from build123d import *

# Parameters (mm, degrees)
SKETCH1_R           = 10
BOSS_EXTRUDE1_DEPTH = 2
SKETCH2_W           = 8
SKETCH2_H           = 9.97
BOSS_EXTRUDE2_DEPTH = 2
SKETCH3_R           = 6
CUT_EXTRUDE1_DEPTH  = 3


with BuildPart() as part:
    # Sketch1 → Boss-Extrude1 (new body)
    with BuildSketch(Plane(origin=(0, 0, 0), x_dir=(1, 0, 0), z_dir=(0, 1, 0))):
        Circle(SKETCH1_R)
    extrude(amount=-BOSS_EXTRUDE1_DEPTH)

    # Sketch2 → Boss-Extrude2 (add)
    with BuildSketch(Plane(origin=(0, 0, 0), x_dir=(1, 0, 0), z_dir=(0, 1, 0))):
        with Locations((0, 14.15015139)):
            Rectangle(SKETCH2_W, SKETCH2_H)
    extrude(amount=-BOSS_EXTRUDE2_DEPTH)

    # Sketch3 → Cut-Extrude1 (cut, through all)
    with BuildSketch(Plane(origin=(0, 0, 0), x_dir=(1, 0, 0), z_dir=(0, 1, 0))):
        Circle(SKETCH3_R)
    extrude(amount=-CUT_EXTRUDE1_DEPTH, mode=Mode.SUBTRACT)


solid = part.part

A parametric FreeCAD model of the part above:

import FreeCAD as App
import Part
import Sketcher
from FreeCAD import Vector


def add_polygon(sketch, points):
    """Adds a closed chain of lines whose ends are joined by coincident constraints."""
    first, n = sketch.GeometryCount, len(points)
    for a, b in zip(points, points[1:] + points[:1]):
        sketch.addGeometry(Part.LineSegment(App.Vector(*a, 0), App.Vector(*b, 0)), False)
    for i in range(n):
        sketch.addConstraint(Sketcher.Constraint("Coincident", first + i, 2, first + (i + 1) % n, 1))

doc = App.newDocument("Part")
body = doc.addObject("PartDesign::Body", "Body")

sketch1 = doc.addObject("Sketcher::SketchObject", "Sketch")
body.addObject(sketch1)
sketch1.AttachmentSupport = (doc.XZ_Plane, [""])
sketch1.MapMode = "FlatFace"
sketch1.addGeometry(Part.Circle(Vector(0, 0, 0), Vector(0, 0, 1), 10), False)
sketch1.addConstraint([
    Sketcher.Constraint("Coincident", 0, 3, -1, 1),
    Sketcher.Constraint("Diameter", 0, 20.0),
])
pad1 = doc.addObject("PartDesign::Pad", "Pad")
body.addObject(pad1)
pad1.Profile = sketch1
pad1.Length = 2

sketch2 = doc.addObject("Sketcher::SketchObject", "Sketch001")
body.addObject(sketch2)
sketch2.AttachmentSupport = (doc.XZ_Plane, [""])
sketch2.MapMode = "FlatFace"
add_polygon(sketch2, [(-4, -19), (-4, -9), (4, -9), (4, -19)])
sketch2.addConstraint([
    Sketcher.Constraint("Vertical", 0),
    Sketcher.Constraint("Horizontal", 1),
    Sketcher.Constraint("Vertical", 2),
    Sketcher.Constraint("Horizontal", 3),
    Sketcher.Constraint("DistanceX", 1, 1, 1, 2, 8.0),
    Sketcher.Constraint("DistanceX", 0, 2, -1, 1, 4.0),
    Sketcher.Constraint("DistanceY", 0, 1, 0, 2, 9.97),
    Sketcher.Constraint("DistanceY", 0, 2, -1, 1, 9.165151),
])
pad2 = doc.addObject("PartDesign::Pad", "Pad001")
body.addObject(pad2)
pad2.Profile = sketch2
pad2.Length = 2

sketch3 = doc.addObject("Sketcher::SketchObject", "Sketch002")
body.addObject(sketch3)
sketch3.AttachmentSupport = (doc.XZ_Plane, [""])
sketch3.MapMode = "FlatFace"
sketch3.addGeometry(Part.Circle(Vector(0, 0, 0), Vector(0, 0, 1), 6), False)
sketch3.addConstraint([
    Sketcher.Constraint("Coincident", 0, 3, -1, 1),
    Sketcher.Constraint("Diameter", 0, 12.0),
])
pocket1 = doc.addObject("PartDesign::Pocket", "Pocket")
body.addObject(pocket1)
pocket1.Profile = sketch3
pocket1.Type = "ThroughAll"
pocket1.Reversed = True

doc.recompute()
